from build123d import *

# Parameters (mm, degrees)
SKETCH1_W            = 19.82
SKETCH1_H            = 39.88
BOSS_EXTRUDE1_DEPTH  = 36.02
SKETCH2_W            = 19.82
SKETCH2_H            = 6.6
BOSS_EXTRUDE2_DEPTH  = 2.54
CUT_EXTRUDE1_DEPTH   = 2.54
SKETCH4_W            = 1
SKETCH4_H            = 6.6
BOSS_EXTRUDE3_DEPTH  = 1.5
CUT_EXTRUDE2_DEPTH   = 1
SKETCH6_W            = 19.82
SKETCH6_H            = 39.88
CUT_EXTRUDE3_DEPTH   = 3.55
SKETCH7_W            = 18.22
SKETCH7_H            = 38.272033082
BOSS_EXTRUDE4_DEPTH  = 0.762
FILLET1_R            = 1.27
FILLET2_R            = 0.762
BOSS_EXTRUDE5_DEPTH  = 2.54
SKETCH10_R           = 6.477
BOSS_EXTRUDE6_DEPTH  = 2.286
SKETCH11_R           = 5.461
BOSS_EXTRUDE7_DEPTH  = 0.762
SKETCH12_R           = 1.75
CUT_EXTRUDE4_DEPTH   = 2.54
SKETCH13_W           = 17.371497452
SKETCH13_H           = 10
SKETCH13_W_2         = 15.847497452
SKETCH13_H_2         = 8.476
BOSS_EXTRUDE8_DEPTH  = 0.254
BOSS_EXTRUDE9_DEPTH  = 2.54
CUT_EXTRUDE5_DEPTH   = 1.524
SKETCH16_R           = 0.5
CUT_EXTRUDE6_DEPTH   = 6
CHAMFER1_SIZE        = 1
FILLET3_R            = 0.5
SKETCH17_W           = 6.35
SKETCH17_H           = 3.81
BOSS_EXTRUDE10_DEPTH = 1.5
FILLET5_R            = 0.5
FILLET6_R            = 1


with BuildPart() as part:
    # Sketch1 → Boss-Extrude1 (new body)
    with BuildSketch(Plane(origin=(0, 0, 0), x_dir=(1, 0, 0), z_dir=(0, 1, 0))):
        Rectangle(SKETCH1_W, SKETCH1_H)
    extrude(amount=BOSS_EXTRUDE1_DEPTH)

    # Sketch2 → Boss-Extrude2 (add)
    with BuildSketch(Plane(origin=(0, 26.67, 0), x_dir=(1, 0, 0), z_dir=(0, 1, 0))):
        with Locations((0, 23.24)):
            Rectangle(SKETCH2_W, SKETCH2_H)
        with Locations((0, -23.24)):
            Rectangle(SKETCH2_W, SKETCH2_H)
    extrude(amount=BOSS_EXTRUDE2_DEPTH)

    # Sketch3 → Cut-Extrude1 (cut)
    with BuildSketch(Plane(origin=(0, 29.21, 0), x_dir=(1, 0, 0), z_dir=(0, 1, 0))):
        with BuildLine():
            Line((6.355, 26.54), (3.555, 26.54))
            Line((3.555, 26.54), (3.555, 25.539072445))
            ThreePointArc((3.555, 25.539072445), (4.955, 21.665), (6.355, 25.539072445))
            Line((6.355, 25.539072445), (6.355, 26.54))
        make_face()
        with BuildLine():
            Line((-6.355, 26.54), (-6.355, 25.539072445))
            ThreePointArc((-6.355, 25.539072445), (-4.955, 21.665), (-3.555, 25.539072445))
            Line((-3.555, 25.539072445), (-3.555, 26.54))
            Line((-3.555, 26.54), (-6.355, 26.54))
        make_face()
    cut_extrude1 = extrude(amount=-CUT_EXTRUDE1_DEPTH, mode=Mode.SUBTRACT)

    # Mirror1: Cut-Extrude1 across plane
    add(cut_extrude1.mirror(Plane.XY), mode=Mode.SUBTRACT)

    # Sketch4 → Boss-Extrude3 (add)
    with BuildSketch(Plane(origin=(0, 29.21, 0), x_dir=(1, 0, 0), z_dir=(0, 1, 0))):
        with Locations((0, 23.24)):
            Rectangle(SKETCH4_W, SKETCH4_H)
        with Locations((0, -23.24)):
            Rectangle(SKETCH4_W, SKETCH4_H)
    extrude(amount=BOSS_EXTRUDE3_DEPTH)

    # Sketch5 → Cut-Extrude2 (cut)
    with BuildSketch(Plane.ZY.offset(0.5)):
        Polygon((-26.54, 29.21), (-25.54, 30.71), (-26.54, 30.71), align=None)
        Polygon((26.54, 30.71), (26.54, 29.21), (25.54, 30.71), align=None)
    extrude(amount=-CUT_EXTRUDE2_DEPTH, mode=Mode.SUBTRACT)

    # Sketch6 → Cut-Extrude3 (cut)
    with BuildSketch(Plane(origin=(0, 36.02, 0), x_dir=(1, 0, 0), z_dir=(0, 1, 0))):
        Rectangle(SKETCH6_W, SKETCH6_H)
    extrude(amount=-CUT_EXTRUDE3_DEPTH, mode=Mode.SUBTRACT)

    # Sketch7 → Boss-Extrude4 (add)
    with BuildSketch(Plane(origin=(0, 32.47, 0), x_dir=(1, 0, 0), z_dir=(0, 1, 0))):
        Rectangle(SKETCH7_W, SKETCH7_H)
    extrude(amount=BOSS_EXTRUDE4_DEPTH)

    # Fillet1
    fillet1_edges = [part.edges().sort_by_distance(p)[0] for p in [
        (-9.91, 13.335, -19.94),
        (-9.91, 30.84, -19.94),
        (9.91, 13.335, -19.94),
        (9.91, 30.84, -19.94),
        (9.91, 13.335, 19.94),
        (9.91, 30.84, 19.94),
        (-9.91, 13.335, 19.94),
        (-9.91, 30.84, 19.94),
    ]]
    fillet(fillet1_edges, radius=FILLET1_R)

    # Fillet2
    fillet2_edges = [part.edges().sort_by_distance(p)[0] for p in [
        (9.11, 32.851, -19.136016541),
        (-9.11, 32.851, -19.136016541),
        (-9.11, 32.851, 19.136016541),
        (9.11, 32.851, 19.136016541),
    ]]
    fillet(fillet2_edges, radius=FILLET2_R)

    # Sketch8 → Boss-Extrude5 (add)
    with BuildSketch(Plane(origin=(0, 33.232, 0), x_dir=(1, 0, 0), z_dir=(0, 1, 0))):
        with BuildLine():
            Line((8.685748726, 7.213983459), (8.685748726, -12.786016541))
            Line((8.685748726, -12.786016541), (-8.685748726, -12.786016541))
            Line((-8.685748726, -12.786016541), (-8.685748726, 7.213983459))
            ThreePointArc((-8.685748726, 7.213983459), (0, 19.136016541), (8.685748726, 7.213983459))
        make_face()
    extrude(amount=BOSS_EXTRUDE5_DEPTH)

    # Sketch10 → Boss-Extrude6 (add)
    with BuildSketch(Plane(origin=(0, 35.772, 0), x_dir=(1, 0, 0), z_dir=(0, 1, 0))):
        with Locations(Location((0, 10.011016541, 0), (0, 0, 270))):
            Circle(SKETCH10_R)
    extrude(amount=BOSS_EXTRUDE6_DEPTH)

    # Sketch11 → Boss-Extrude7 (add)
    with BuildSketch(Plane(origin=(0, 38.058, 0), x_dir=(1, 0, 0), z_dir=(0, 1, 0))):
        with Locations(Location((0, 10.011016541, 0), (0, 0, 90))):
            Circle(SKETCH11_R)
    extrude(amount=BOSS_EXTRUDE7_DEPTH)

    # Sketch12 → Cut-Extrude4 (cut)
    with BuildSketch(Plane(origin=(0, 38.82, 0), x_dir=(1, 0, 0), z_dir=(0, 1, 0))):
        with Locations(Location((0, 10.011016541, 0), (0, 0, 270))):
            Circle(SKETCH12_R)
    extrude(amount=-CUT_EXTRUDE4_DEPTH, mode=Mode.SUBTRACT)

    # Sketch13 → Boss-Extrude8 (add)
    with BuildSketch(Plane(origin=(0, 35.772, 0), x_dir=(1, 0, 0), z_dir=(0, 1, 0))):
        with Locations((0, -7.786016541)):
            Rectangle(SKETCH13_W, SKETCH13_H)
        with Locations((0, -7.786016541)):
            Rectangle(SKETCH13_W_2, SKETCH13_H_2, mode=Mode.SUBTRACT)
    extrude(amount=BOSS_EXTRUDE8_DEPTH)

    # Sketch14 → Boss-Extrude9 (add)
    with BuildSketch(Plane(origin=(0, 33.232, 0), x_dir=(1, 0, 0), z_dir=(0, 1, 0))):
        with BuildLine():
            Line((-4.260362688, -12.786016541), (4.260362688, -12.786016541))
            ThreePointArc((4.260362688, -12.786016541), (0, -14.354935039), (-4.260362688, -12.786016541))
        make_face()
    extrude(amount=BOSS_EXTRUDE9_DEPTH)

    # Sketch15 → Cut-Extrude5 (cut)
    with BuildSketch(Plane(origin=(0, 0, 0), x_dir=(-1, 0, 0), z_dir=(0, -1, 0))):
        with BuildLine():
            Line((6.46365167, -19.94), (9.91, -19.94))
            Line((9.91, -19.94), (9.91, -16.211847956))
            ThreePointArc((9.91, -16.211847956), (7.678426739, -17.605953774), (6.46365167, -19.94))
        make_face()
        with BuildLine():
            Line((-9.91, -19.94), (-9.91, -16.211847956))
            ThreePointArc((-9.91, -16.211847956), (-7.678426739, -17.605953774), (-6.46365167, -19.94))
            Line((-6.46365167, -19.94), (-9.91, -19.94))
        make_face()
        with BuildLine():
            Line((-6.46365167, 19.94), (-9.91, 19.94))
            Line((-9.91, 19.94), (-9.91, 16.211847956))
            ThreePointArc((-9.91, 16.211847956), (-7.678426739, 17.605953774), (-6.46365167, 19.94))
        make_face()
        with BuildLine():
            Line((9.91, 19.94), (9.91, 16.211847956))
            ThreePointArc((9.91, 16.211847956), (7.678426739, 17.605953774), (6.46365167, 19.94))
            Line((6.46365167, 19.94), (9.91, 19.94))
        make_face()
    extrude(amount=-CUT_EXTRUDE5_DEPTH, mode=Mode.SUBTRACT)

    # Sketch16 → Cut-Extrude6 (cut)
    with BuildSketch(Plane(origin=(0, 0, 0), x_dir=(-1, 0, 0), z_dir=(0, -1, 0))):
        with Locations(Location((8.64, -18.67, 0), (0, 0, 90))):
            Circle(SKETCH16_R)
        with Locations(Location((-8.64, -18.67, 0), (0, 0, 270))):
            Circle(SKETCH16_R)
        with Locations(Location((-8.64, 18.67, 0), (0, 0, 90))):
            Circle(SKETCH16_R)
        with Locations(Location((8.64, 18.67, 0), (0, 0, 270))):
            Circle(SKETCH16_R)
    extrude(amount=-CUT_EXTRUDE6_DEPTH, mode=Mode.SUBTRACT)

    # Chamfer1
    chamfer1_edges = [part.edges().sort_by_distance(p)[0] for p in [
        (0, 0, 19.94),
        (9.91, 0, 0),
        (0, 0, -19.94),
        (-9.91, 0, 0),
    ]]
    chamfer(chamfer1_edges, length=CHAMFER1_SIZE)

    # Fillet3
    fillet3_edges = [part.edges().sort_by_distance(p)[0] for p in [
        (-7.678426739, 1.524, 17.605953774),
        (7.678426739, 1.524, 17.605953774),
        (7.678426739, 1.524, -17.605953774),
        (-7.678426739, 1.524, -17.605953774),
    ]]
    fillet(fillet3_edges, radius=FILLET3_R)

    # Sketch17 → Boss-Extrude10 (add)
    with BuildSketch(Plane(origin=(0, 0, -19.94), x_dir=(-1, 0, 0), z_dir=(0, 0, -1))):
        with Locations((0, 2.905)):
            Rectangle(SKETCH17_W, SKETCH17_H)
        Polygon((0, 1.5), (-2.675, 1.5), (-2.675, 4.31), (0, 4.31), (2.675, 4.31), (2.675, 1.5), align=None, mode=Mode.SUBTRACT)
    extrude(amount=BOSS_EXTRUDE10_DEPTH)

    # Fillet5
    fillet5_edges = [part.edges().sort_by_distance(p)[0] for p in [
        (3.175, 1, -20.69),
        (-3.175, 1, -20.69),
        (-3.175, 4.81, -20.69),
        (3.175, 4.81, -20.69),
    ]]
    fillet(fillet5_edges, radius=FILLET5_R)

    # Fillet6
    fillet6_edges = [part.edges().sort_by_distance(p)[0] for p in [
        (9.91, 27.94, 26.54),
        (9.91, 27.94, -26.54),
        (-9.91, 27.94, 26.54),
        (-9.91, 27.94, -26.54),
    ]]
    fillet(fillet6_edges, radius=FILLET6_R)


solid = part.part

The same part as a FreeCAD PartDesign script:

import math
import FreeCAD as App
import Part
import Sketcher

V = App.Vector
Q = App.Units.Quantity


def edges_at(feature, points):
    """Names of the edges that pass closest to the given points."""
    edges = feature.Shape.Edges
    near = lambda p: min(range(len(edges)), key=lambda i: edges[i].distToShape(Part.Vertex(*p))[0])
    return sorted({f"Edge{near(p) + 1}" for p in points})

doc = App.newDocument("Part")
params = doc.addObject("Spreadsheet::Sheet", "Params")
for row, (alias, value) in enumerate([
    ("pad1_length", "36.02 mm"),
    ("pad2_length", "0.1 in"),
    ("pocket1_length", "0.1 in"),
    ("pad3_length", "1.5 mm"),
    ("pocket2_length", "1 mm"),
    ("pocket3_length", "3.55 mm"),
    ("pad4_length", "0.03 in"),
    ("fillet_radius", "0.05 in"),
    ("fillet2_radius", "0.03 in"),
    ("pad5_length", "0.1 in"),
    ("sketch9_diameter", "0.51 in"),
    ("pad6_length", "0.09 in"),
    ("sketch10_diameter", "0.43 in"),
    ("pad7_length", "0.03 in"),
    ("pocket4_length", "0.1 in"),
    ("pad8_length", "0.01 in"),
    ("pad9_length", "0.1 in"),
    ("pocket5_length", "0.06 in"),
    ("pocket6_length", "6 mm"),
    ("chamfer_size", "1 mm"),
    ("fillet3_radius", "0.5 mm"),
    ("sketch16_width", "0.25 in"),
    ("sketch16_height", "0.15 in"),
    ("pad10_length", "1.5 mm"),
    ("fillet4_radius", "0.5 mm"),
    ("fillet5_radius", "1 mm"),
], start=1):
    params.set(f"A{row}", alias)
    params.set(f"B{row}", "=" + value)
    params.setAlias(f"B{row}", alias)

body = doc.addObject("PartDesign::Body", "Body")

# Sketch on XZ plane
sketch1 = body.newObject("Sketcher::SketchObject", "Sketch")
sketch1.AttachmentSupport = (doc.getObject("XZ_Plane"), [""])
sketch1.MapMode = "FlatFace"
sketch1.addGeometry(Part.LineSegment(V(-9.91, -19.94, 0), V(-9.91, 19.94, 0)), False)
sketch1.addGeometry(Part.LineSegment(V(-9.91, 19.94, 0), V(9.91, 19.94, 0)), False)
sketch1.addGeometry(Part.LineSegment(V(9.91, 19.94, 0), V(9.91, -19.94, 0)), False)
sketch1.addGeometry(Part.LineSegment(V(9.91, -19.94, 0), V(-9.91, -19.94, 0)), False)
sketch1.addConstraint(Sketcher.Constraint("Coincident", 0, 2, 1, 1))
sketch1.addConstraint(Sketcher.Constraint("Coincident", 1, 2, 2, 1))
sketch1.addConstraint(Sketcher.Constraint("Coincident", 2, 2, 3, 1))
sketch1.addConstraint(Sketcher.Constraint("Coincident", 3, 2, 0, 1))
sketch1.addConstraint(Sketcher.Constraint("Vertical", 0))
sketch1.addConstraint(Sketcher.Constraint("Horizontal", 1))
sketch1.addConstraint(Sketcher.Constraint("Vertical", 2))
sketch1.addConstraint(Sketcher.Constraint("Horizontal", 3))
sketch1.addConstraint(Sketcher.Constraint("Symmetric", 0, 2, 2, 2, -1, 1))
sketch1.addConstraint(Sketcher.Constraint("DistanceX", 1, 1, 1, 2, Q("19.82 mm")))
sketch1.addConstraint(Sketcher.Constraint("DistanceY", 0, 1, 0, 2, Q("39.88 mm")))
pad1 = body.newObject("PartDesign::Pad", "Pad")
pad1.Profile = sketch1
pad1.setExpression("Length", "Params.pad1_length")
pad1.Reversed = True

# Sketch on XZ plane
sketch2 = body.newObject("Sketcher::SketchObject", "Sketch001")
sketch2.AttachmentSupport = (doc.getObject("XZ_Plane"), [""])
sketch2.MapMode = "FlatFace"
sketch2.AttachmentOffset = App.Placement(V(0, 0, -1.05 * 25.4), App.Rotation())
sketch2.addGeometry(Part.LineSegment(V(-9.91, -26.54, 0), V(-9.91, -19.94, 0)), False)
sketch2.addGeometry(Part.LineSegment(V(-9.91, -19.94, 0), V(9.91, -19.94, 0)), False)
sketch2.addGeometry(Part.LineSegment(V(9.91, -19.94, 0), V(9.91, -26.54, 0)), False)
sketch2.addGeometry(Part.LineSegment(V(9.91, -26.54, 0), V(-9.91, -26.54, 0)), False)
sketch2.addGeometry(Part.LineSegment(V(-9.91, 19.94, 0), V(-9.91, 26.54, 0)), False)
sketch2.addGeometry(Part.LineSegment(V(-9.91, 26.54, 0), V(9.91, 26.54, 0)), False)
sketch2.addGeometry(Part.LineSegment(V(9.91, 26.54, 0), V(9.91, 19.94, 0)), False)
sketch2.addGeometry(Part.LineSegment(V(9.91, 19.94, 0), V(-9.91, 19.94, 0)), False)
sketch2.addConstraint(Sketcher.Constraint("Coincident", 0, 2, 1, 1))
sketch2.addConstraint(Sketcher.Constraint("Coincident", 1, 2, 2, 1))
sketch2.addConstraint(Sketcher.Constraint("Coincident", 2, 2, 3, 1))
sketch2.addConstraint(Sketcher.Constraint("Coincident", 3, 2, 0, 1))
sketch2.addConstraint(Sketcher.Constraint("Coincident", 4, 2, 5, 1))
sketch2.addConstraint(Sketcher.Constraint("Coincident", 5, 2, 6, 1))
sketch2.addConstraint(Sketcher.Constraint("Coincident", 6, 2, 7, 1))
sketch2.addConstraint(Sketcher.Constraint("Coincident", 7, 2, 4, 1))
sketch2.addConstraint(Sketcher.Constraint("Vertical", 0))
sketch2.addConstraint(Sketcher.Constraint("Horizontal", 1))
sketch2.addConstraint(Sketcher.Constraint("Vertical", 2))
sketch2.addConstraint(Sketcher.Constraint("Horizontal", 3))
sketch2.addConstraint(Sketcher.Constraint("Vertical", 4))
sketch2.addConstraint(Sketcher.Constraint("Horizontal", 5))
sketch2.addConstraint(Sketcher.Constraint("Vertical", 6))
sketch2.addConstraint(Sketcher.Constraint("Horizontal", 7))
sketch2.addConstraint(Sketcher.Constraint("Symmetric", 2, 2, 4, 2, -1, 1))
sketch2.addConstraint(Sketcher.Constraint("Symmetric", 0, 2, 6, 2, -1, 1))
sketch2.addConstraint(Sketcher.Constraint("Vertical", 3, 2, 4, 2))
sketch2.addConstraint(Sketcher.Constraint("DistanceX", 1, 1, 1, 2, Q("19.82 mm")))
sketch2.addConstraint(Sketcher.Constraint("DistanceY", 0, 1, 0, 2, Q("6.6 mm")))
sketch2.addConstraint(Sketcher.Constraint("DistanceY", 0, 2, -1, 1, Q("19.94 mm")))
pad2 = body.newObject("PartDesign::Pad", "Pad001")
pad2.Profile = sketch2
pad2.setExpression("Length", "Params.pad2_length")
pad2.Reversed = True

# Sketch on XZ plane
sketch3 = body.newObject("Sketcher::SketchObject", "Sketch002")
sketch3.AttachmentSupport = (doc.getObject("XZ_Plane"), [""])
sketch3.MapMode = "FlatFace"
sketch3.AttachmentOffset = App.Placement(V(0, 0, -1.15 * 25.4), App.Rotation())
sketch3.addGeometry(Part.LineSegment(V(6.355, -26.54, 0), V(3.555, -26.54, 0)), False)
sketch3.addGeometry(Part.LineSegment(V(3.555, -26.54, 0), V(3.555, -25.539072, 0)), False)
sketch3.addGeometry(Part.ArcOfCircle(Part.Circle(V(4.955, -23.855, 0), V(0, 0, 1), 2.19), math.radians(-50.262637), math.radians(230.262637)), False)
sketch3.addGeometry(Part.LineSegment(V(6.355, -25.539072, 0), V(6.355, -26.54, 0)), False)
sketch3.addGeometry(Part.LineSegment(V(-6.355, -26.54, 0), V(-6.355, -25.539072, 0)), False)
sketch3.addGeometry(Part.ArcOfCircle(Part.Circle(V(-4.955, -23.855, 0), V(0, 0, 1), 2.19), math.radians(-50.262637), math.radians(230.262637)), False)
sketch3.addGeometry(Part.LineSegment(V(-3.555, -25.539072, 0), V(-3.555, -26.54, 0)), False)
sketch3.addGeometry(Part.LineSegment(V(-3.555, -26.54, 0), V(-6.355, -26.54, 0)), False)
sketch3.addConstraint(Sketcher.Constraint("Coincident", 0, 2, 1, 1))
sketch3.addConstraint(Sketcher.Constraint("Coincident", 1, 2, 2, 2))
sketch3.addConstraint(Sketcher.Constraint("Coincident", 2, 1, 3, 1))
sketch3.addConstraint(Sketcher.Constraint("Coincident", 3, 2, 0, 1))
sketch3.addConstraint(Sketcher.Constraint("Coincident", 4, 2, 5, 2))
sketch3.addConstraint(Sketcher.Constraint("Coincident", 5, 1, 6, 1))
sketch3.addConstraint(Sketcher.Constraint("Coincident", 6, 2, 7, 1))
sketch3.addConstraint(Sketcher.Constraint("Coincident", 7, 2, 4, 1))
sketch3.addConstraint(Sketcher.Constraint("Horizontal", 0))
sketch3.addConstraint(Sketcher.Constraint("Vertical", 1))
sketch3.addConstraint(Sketcher.Constraint("Vertical", 3))
sketch3.addConstraint(Sketcher.Constraint("Vertical", 4))
sketch3.addConstraint(Sketcher.Constraint("Vertical", 6))
sketch3.addConstraint(Sketcher.Constraint("Horizontal", 7))
sketch3.addConstraint(Sketcher.Constraint("Equal", 2, 5))
sketch3.addConstraint(Sketcher.Constraint("Symmetric", 2, 3, 5, 3, -2))
sketch3.addConstraint(Sketcher.Constraint("Symmetric", 0, 2, 6, 2, -2))
sketch3.addConstraint(Sketcher.Constraint("Horizontal", 1, 2, 2, 1))
sketch3.addConstraint(Sketcher.Constraint("Horizontal", 2, 1, 4, 2))
sketch3.addConstraint(Sketcher.Constraint("Radius", 2, Q("2.19 mm")))
sketch3.addConstraint(Sketcher.Constraint("DistanceX", 0, 2, 0, 1, Q("2.8 mm")))
sketch3.addConstraint(Sketcher.Constraint("DistanceX", -1, 1, 2, 3, Q("4.955 mm")))
sketch3.addConstraint(Sketcher.Constraint("DistanceY", 2, 3, -1, 1, Q("23.855 mm")))
sketch3.addConstraint(Sketcher.Constraint("DistanceY", 0, 2, -1, 1, Q("26.54 mm")))
pocket1 = body.newObject("PartDesign::Pocket", "Pocket")
pocket1.Profile = sketch3
pocket1.setExpression("Length", "Params.pocket1_length")
pocket1.Reversed = True
doc.recompute()

mirrored = body.newObject("PartDesign::Mirrored", "Mirrored")
mirrored.Originals = [pocket1]
mirrored.MirrorPlane = (doc.getObject("XY_Plane"), [""])
body.Tip = mirrored

# Sketch on XZ plane
sketch4 = body.newObject("Sketcher::SketchObject", "Sketch003")
sketch4.AttachmentSupport = (doc.getObject("XZ_Plane"), [""])
sketch4.MapMode = "FlatFace"
sketch4.AttachmentOffset = App.Placement(V(0, 0, -1.15 * 25.4), App.Rotation())
sketch4.addGeometry(Part.LineSegment(V(-0.5, -26.54, 0), V(-0.5, -19.94, 0)), False)
sketch4.addGeometry(Part.LineSegment(V(-0.5, -19.94, 0), V(0.5, -19.94, 0)), False)
sketch4.addGeometry(Part.LineSegment(V(0.5, -19.94, 0), V(0.5, -26.54, 0)), False)
sketch4.addGeometry(Part.LineSegment(V(0.5, -26.54, 0), V(-0.5, -26.54, 0)), False)
sketch4.addGeometry(Part.LineSegment(V(-0.5, 19.94, 0), V(-0.5, 26.54, 0)), False)
sketch4.addGeometry(Part.LineSegment(V(-0.5, 26.54, 0), V(0.5, 26.54, 0)), False)
sketch4.addGeometry(Part.LineSegment(V(0.5, 26.54, 0), V(0.5, 19.94, 0)), False)
sketch4.addGeometry(Part.LineSegment(V(0.5, 19.94, 0), V(-0.5, 19.94, 0)), False)
sketch4.addConstraint(Sketcher.Constraint("Coincident", 0, 2, 1, 1))
sketch4.addConstraint(Sketcher.Constraint("Coincident", 1, 2, 2, 1))
sketch4.addConstraint(Sketcher.Constraint("Coincident", 2, 2, 3, 1))
sketch4.addConstraint(Sketcher.Constraint("Coincident", 3, 2, 0, 1))
sketch4.addConstraint(Sketcher.Constraint("Coincident", 4, 2, 5, 1))
sketch4.addConstraint(Sketcher.Constraint("Coincident", 5, 2, 6, 1))
sketch4.addConstraint(Sketcher.Constraint("Coincident", 6, 2, 7, 1))
sketch4.addConstraint(Sketcher.Constraint("Coincident", 7, 2, 4, 1))
sketch4.addConstraint(Sketcher.Constraint("Vertical", 0))
sketch4.addConstraint(Sketcher.Constraint("Horizontal", 1))
sketch4.addConstraint(Sketcher.Constraint("Vertical", 2))
sketch4.addConstraint(Sketcher.Constraint("Horizontal", 3))
sketch4.addConstraint(Sketcher.Constraint("Vertical", 4))
sketch4.addConstraint(Sketcher.Constraint("Horizontal", 5))
sketch4.addConstraint(Sketcher.Constraint("Vertical", 6))
sketch4.addConstraint(Sketcher.Constraint("Horizontal", 7))
sketch4.addConstraint(Sketcher.Constraint("Symmetric", 2, 2, 4, 2, -1, 1))
sketch4.addConstraint(Sketcher.Constraint("Symmetric", 0, 2, 6, 2, -1, 1))
sketch4.addConstraint(Sketcher.Constraint("Vertical", 3, 2, 4, 2))
sketch4.addConstraint(Sketcher.Constraint("DistanceX", 1, 1, 1, 2, Q("1 mm")))
sketch4.addConstraint(Sketcher.Constraint("DistanceY", 0, 1, 0, 2, Q("6.6 mm")))
sketch4.addConstraint(Sketcher.Constraint("DistanceY", 0, 2, -1, 1, Q("19.94 mm")))
pad3 = body.newObject("PartDesign::Pad", "Pad002")
pad3.Profile = sketch4
pad3.setExpression("Length", "Params.pad3_length")
pad3.Reversed = True

# Sketch on YZ plane
sketch5 = body.newObject("Sketcher::SketchObject", "Sketch004")
sketch5.AttachmentSupport = (doc.getObject("YZ_Plane"), [""])
sketch5.MapMode = "FlatFace"
sketch5.AttachmentOffset = App.Placement(V(0, 0, -0.5), App.Rotation())
sketch5.addGeometry(Part.LineSegment(V(29.21, -26.54, 0), V(30.71, -25.54, 0)), False)
sketch5.addGeometry(Part.LineSegment(V(30.71, -25.54, 0), V(30.71, -26.54, 0)), False)
sketch5.addGeometry(Part.LineSegment(V(30.71, -26.54, 0), V(29.21, -26.54, 0)), False)
sketch5.addGeometry(Part.LineSegment(V(29.21, 26.54, 0), V(30.71, 26.54, 0)), False)
sketch5.addGeometry(Part.LineSegment(V(30.71, 26.54, 0), V(30.71, 25.54, 0)), False)
sketch5.addGeometry(Part.LineSegment(V(30.71, 25.54, 0), V(29.21, 26.54, 0)), False)
sketch5.addConstraint(Sketcher.Constraint("Coincident", 0, 2, 1, 1))
sketch5.addConstraint(Sketcher.Constraint("Coincident", 1, 2, 2, 1))
sketch5.addConstraint(Sketcher.Constraint("Coincident", 2, 2, 0, 1))
sketch5.addConstraint(Sketcher.Constraint("Coincident", 3, 2, 4, 1))
sketch5.addConstraint(Sketcher.Constraint("Coincident", 4, 2, 5, 1))
sketch5.addConstraint(Sketcher.Constraint("Coincident", 5, 2, 3, 1))
sketch5.addConstraint(Sketcher.Constraint("Vertical", 1))
sketch5.addConstraint(Sketcher.Constraint("Horizontal", 2))
sketch5.addConstraint(Sketcher.Constraint("Horizontal", 3))
sketch5.addConstraint(Sketcher.Constraint("Vertical", 4))
sketch5.addConstraint(Sketcher.Constraint("Symmetric", 1, 2, 3, 2, -1))
sketch5.addConstraint(Sketcher.Constraint("Vertical", 2, 2, 5, 2))
sketch5.addConstraint(Sketcher.Constraint("Equal", 1, 4))
sketch5.addConstraint(Sketcher.Constraint("DistanceX", -1, 1, 2, 2, Q("1.15 in")))
sketch5.addConstraint(Sketcher.Constraint("DistanceX", 2, 2, 2, 1, Q("1.5 mm")))
sketch5.addConstraint(Sketcher.Constraint("DistanceY", 1, 2, 1, 1, Q("1 mm")))
sketch5.addConstraint(Sketcher.Constraint("DistanceY", 0, 2, -1, 1, Q("25.54 mm")))
pocket2 = body.newObject("PartDesign::Pocket", "Pocket001")
pocket2.Profile = sketch5
pocket2.setExpression("Length", "Params.pocket2_length")
pocket2.Reversed = True

# Sketch on XZ plane
sketch6 = body.newObject("Sketcher::SketchObject", "Sketch005")
sketch6.AttachmentSupport = (doc.getObject("XZ_Plane"), [""])
sketch6.MapMode = "FlatFace"
sketch6.AttachmentOffset = App.Placement(V(0, 0, -36.02), App.Rotation())
sketch6.addGeometry(Part.LineSegment(V(-9.91, -19.94, 0), V(-9.91, 19.94, 0)), False)
sketch6.addGeometry(Part.LineSegment(V(-9.91, 19.94, 0), V(9.91, 19.94, 0)), False)
sketch6.addGeometry(Part.LineSegment(V(9.91, 19.94, 0), V(9.91, -19.94, 0)), False)
sketch6.addGeometry(Part.LineSegment(V(9.91, -19.94, 0), V(-9.91, -19.94, 0)), False)
sketch6.addConstraint(Sketcher.Constraint("Coincident", 0, 2, 1, 1))
sketch6.addConstraint(Sketcher.Constraint("Coincident", 1, 2, 2, 1))
sketch6.addConstraint(Sketcher.Constraint("Coincident", 2, 2, 3, 1))
sketch6.addConstraint(Sketcher.Constraint("Coincident", 3, 2, 0, 1))
sketch6.addConstraint(Sketcher.Constraint("Vertical", 0))
sketch6.addConstraint(Sketcher.Constraint("Horizontal", 1))
sketch6.addConstraint(Sketcher.Constraint("Vertical", 2))
sketch6.addConstraint(Sketcher.Constraint("Horizontal", 3))
sketch6.addConstraint(Sketcher.Constraint("Symmetric", 0, 2, 2, 2, -1, 1))
sketch6.addConstraint(Sketcher.Constraint("DistanceX", 1, 1, 1, 2, Q("19.82 mm")))
sketch6.addConstraint(Sketcher.Constraint("DistanceY", 0, 1, 0, 2, Q("39.88 mm")))
pocket3 = body.newObject("PartDesign::Pocket", "Pocket002")
pocket3.Profile = sketch6
pocket3.setExpression("Length", "Params.pocket3_length")
pocket3.Reversed = True

# Sketch on XZ plane
sketch7 = body.newObject("Sketcher::SketchObject", "Sketch006")
sketch7.AttachmentSupport = (doc.getObject("XZ_Plane"), [""])
sketch7.MapMode = "FlatFace"
sketch7.AttachmentOffset = App.Placement(V(0, 0, -32.47), App.Rotation())
sketch7.addGeometry(Part.LineSegment(V(-9.11, -19.136017, 0), V(-9.11, 19.136017, 0)), False)
sketch7.addGeometry(Part.LineSegment(V(-9.11, 19.136017, 0), V(9.11, 19.136017, 0)), False)
sketch7.addGeometry(Part.LineSegment(V(9.11, 19.136017, 0), V(9.11, -19.136017, 0)), False)
sketch7.addGeometry(Part.LineSegment(V(9.11, -19.136017, 0), V(-9.11, -19.136017, 0)), False)
sketch7.addConstraint(Sketcher.Constraint("Coincident", 0, 2, 1, 1))
sketch7.addConstraint(Sketcher.Constraint("Coincident", 1, 2, 2, 1))
sketch7.addConstraint(Sketcher.Constraint("Coincident", 2, 2, 3, 1))
sketch7.addConstraint(Sketcher.Constraint("Coincident", 3, 2, 0, 1))
sketch7.addConstraint(Sketcher.Constraint("Vertical", 0))
sketch7.addConstraint(Sketcher.Constraint("Horizontal", 1))
sketch7.addConstraint(Sketcher.Constraint("Vertical", 2))
sketch7.addConstraint(Sketcher.Constraint("Horizontal", 3))
sketch7.addConstraint(Sketcher.Constraint("Symmetric", 0, 2, 2, 2, -1, 1))
sketch7.addConstraint(Sketcher.Constraint("DistanceX", 1, 1, 1, 2, Q("18.22 mm")))
sketch7.addConstraint(Sketcher.Constraint("DistanceY", 0, 1, 0, 2, Q("38.272033 mm")))
pad4 = body.newObject("PartDesign::Pad", "Pad003")
pad4.Profile = sketch7
pad4.setExpression("Length", "Params.pad4_length")
pad4.Reversed = True
doc.recompute()

fillet = body.newObject("PartDesign::Fillet", "Fillet")
fillet.Base = (pad4, edges_at(pad4, [
    (-9.91, 13.335, -19.94),
    (-9.91, 30.84, -19.94),
    (9.91, 13.335, -19.94),
    (9.91, 30.84, -19.94),
    (9.91, 13.335, 19.94),
    (9.91, 30.84, 19.94),
    (-9.91, 13.335, 19.94),
    (-9.91, 30.84, 19.94),
]))
fillet.setExpression("Radius", "Params.fillet_radius")
doc.recompute()

fillet2 = body.newObject("PartDesign::Fillet", "Fillet001")
fillet2.Base = (fillet, edges_at(fillet, [
    (9.11, 32.851, -19.136),
    (-9.11, 32.851, -19.136),
    (-9.11, 32.851, 19.136),
    (9.11, 32.851, 19.136),
]))
fillet2.setExpression("Radius", "Params.fillet2_radius")

# Sketch on XZ plane
sketch8 = body.newObject("Sketcher::SketchObject", "Sketch007")
sketch8.AttachmentSupport = (doc.getObject("XZ_Plane"), [""])
sketch8.MapMode = "FlatFace"
sketch8.AttachmentOffset = App.Placement(V(0, 0, -33.232), App.Rotation())
sketch8.addGeometry(Part.LineSegment(V(8.685749, 12.786017, 0), V(8.685749, -7.213983, 0)), False)
sketch8.addGeometry(Part.ArcOfCircle(Part.Circle(V(0, -10.011017, 0), V(0, 0, 1), 9.125), math.radians(162.150115), math.radians(377.849885)), False)
sketch8.addGeometry(Part.LineSegment(V(-8.685749, -7.213983, 0), V(-8.685749, 12.786017, 0)), False)
sketch8.addGeometry(Part.LineSegment(V(-8.685749, 12.786017, 0), V(8.685749, 12.786017, 0)), False)
sketch8.addConstraint(Sketcher.Constraint("Coincident", 0, 2, 1, 2))
sketch8.addConstraint(Sketcher.Constraint("Coincident", 1, 1, 2, 1))
sketch8.addConstraint(Sketcher.Constraint("Coincident", 2, 2, 3, 1))
sketch8.addConstraint(Sketcher.Constraint("Coincident", 3, 2, 0, 1))
sketch8.addConstraint(Sketcher.Constraint("Vertical", 0))
sketch8.addConstraint(Sketcher.Constraint("Vertical", 2))
sketch8.addConstraint(Sketcher.Constraint("Horizontal", 3))
sketch8.addConstraint(Sketcher.Constraint("Symmetric", 0, 2, 1, 1, -2))
sketch8.addConstraint(Sketcher.Constraint("Radius", 1, Q("9.125 mm")))
sketch8.addConstraint(Sketcher.Constraint("DistanceY", 0, 2, 0, 1, Q("20 mm")))
sketch8.addConstraint(Sketcher.Constraint("DistanceX", 3, 1, 3, 2, Q("17.371497 mm")))
sketch8.addConstraint(Sketcher.Constraint("DistanceY", 1, 3, -1, 1, Q("10.011017 mm")))
pad5 = body.newObject("PartDesign::Pad", "Pad004")
pad5.Profile = sketch8
pad5.setExpression("Length", "Params.pad5_length")
pad5.Reversed = True

# Sketch on XZ plane
sketch9 = body.newObject("Sketcher::SketchObject", "Sketch008")
sketch9.AttachmentSupport = (doc.getObject("XZ_Plane"), [""])
sketch9.MapMode = "FlatFace"
sketch9.AttachmentOffset = App.Placement(V(0, 0, -35.772), App.Rotation())
sketch9.addGeometry(Part.Circle(V(0, -10.011017, 0), V(0, 0, 1), 6.477), False)
sketch9.addConstraint(Sketcher.Constraint("PointOnObject", 0, 3, -2))
sketch9.addConstraint(Sketcher.Constraint("Diameter", 0, Q("0.51 in")))
sketch9.addConstraint(Sketcher.Constraint("DistanceY", 0, 3, -1, 1, Q("10.011017 mm")))
sketch9.setExpression("Constraints[1]", "Params.sketch9_diameter")
pad6 = body.newObject("PartDesign::Pad", "Pad005")
pad6.Profile = sketch9
pad6.setExpression("Length", "Params.pad6_length")
pad6.Reversed = True

# Sketch on XZ plane
sketch10 = body.newObject("Sketcher::SketchObject", "Sketch009")
sketch10.AttachmentSupport = (doc.getObject("XZ_Plane"), [""])
sketch10.MapMode = "FlatFace"
sketch10.AttachmentOffset = App.Placement(V(0, 0, -38.058), App.Rotation())
sketch10.addGeometry(Part.Circle(V(0, -10.011017, 0), V(0, 0, 1), 5.461), False)
sketch10.addConstraint(Sketcher.Constraint("PointOnObject", 0, 3, -2))
sketch10.addConstraint(Sketcher.Constraint("Diameter", 0, Q("0.43 in")))
sketch10.addConstraint(Sketcher.Constraint("DistanceY", 0, 3, -1, 1, Q("10.011017 mm")))
sketch10.setExpression("Constraints[1]", "Params.sketch10_diameter")
pad7 = body.newObject("PartDesign::Pad", "Pad006")
pad7.Profile = sketch10
pad7.setExpression("Length", "Params.pad7_length")
pad7.Reversed = True

# Sketch on XZ plane
sketch11 = body.newObject("Sketcher::SketchObject", "Sketch010")
sketch11.AttachmentSupport = (doc.getObject("XZ_Plane"), [""])
sketch11.MapMode = "FlatFace"
sketch11.AttachmentOffset = App.Placement(V(0, 0, -38.82), App.Rotation())
sketch11.addGeometry(Part.Circle(V(0, -10.011017, 0), V(0, 0, 1), 1.75), False)
sketch11.addConstraint(Sketcher.Constraint("PointOnObject", 0, 3, -2))
sketch11.addConstraint(Sketcher.Constraint("Diameter", 0, Q("3.5 mm")))
sketch11.addConstraint(Sketcher.Constraint("DistanceY", 0, 3, -1, 1, Q("10.011017 mm")))
pocket4 = body.newObject("PartDesign::Pocket", "Pocket003")
pocket4.Profile = sketch11
pocket4.setExpression("Length", "Params.pocket4_length")
pocket4.Reversed = True

# Sketch on XZ plane
sketch12 = body.newObject("Sketcher::SketchObject", "Sketch011")
sketch12.AttachmentSupport = (doc.getObject("XZ_Plane"), [""])
sketch12.MapMode = "FlatFace"
sketch12.AttachmentOffset = App.Placement(V(0, 0, -35.772), App.Rotation())
sketch12.addGeometry(Part.LineSegment(V(-8.685749, 2.786017, 0), V(-8.685749, 12.786017, 0)), False)
sketch12.addGeometry(Part.LineSegment(V(-8.685749, 12.786017, 0), V(8.685749, 12.786017, 0)), False)
sketch12.addGeometry(Part.LineSegment(V(8.685749, 12.786017, 0), V(8.685749, 2.786017, 0)), False)
sketch12.addGeometry(Part.LineSegment(V(8.685749, 2.786017, 0), V(-8.685749, 2.786017, 0)), False)
sketch12.addGeometry(Part.LineSegment(V(7.923749, 12.024017, 0), V(-7.923749, 12.024017, 0)), False)
sketch12.addGeometry(Part.LineSegment(V(-7.923749, 12.024017, 0), V(-7.923749, 3.548017, 0)), False)
sketch12.addGeometry(Part.LineSegment(V(-7.923749, 3.548017, 0), V(7.923749, 3.548017, 0)), False)
sketch12.addGeometry(Part.LineSegment(V(7.923749, 3.548017, 0), V(7.923749, 12.024017, 0)), False)
sketch12.addConstraint(Sketcher.Constraint("Coincident", 0, 2, 1, 1))
sketch12.addConstraint(Sketcher.Constraint("Coincident", 1, 2, 2, 1))
sketch12.addConstraint(Sketcher.Constraint("Coincident", 2, 2, 3, 1))
sketch12.addConstraint(Sketcher.Constraint("Coincident", 3, 2, 0, 1))
sketch12.addConstraint(Sketcher.Constraint("Coincident", 4, 2, 5, 1))
sketch12.addConstraint(Sketcher.Constraint("Coincident", 5, 2, 6, 1))
sketch12.addConstraint(Sketcher.Constraint("Coincident", 6, 2, 7, 1))
sketch12.addConstraint(Sketcher.Constraint("Coincident", 7, 2, 4, 1))
sketch12.addConstraint(Sketcher.Constraint("Vertical", 0))
sketch12.addConstraint(Sketcher.Constraint("Horizontal", 1))
sketch12.addConstraint(Sketcher.Constraint("Vertical", 2))
sketch12.addConstraint(Sketcher.Constraint("Horizontal", 3))
sketch12.addConstraint(Sketcher.Constraint("Horizontal", 4))
sketch12.addConstraint(Sketcher.Constraint("Vertical", 5))
sketch12.addConstraint(Sketcher.Constraint("Horizontal", 6))
sketch12.addConstraint(Sketcher.Constraint("Vertical", 7))
sketch12.addConstraint(Sketcher.Constraint("DistanceX", 0, 2, 4, 2, Q("0.03 in")))
sketch12.addConstraint(Sketcher.Constraint("DistanceY", 4, 2, 0, 2, Q("0.03 in")))
sketch12.addConstraint(Sketcher.Constraint("DistanceY", 3, 2, 5, 2, Q("0.03 in")))
sketch12.addConstraint(Sketcher.Constraint("DistanceX", 6, 2, 2, 2, Q("0.03 in")))
sketch12.addConstraint(Sketcher.Constraint("DistanceY", 0, 1, 0, 2, Q("10 mm")))
sketch12.addConstraint(Sketcher.Constraint("DistanceX", 1, 1, 1, 2, Q("17.371497 mm")))
sketch12.addConstraint(Sketcher.Constraint("DistanceX", 0, 2, -1, 1, Q("8.685749 mm")))
sketch12.addConstraint(Sketcher.Constraint("DistanceY", -1, 1, 0, 2, Q("12.786017 mm")))
pad8 = body.newObject("PartDesign::Pad", "Pad007")
pad8.Profile = sketch12
pad8.setExpression("Length", "Params.pad8_length")
pad8.Reversed = True

# Sketch on XZ plane
sketch13 = body.newObject("Sketcher::SketchObject", "Sketch012")
sketch13.AttachmentSupport = (doc.getObject("XZ_Plane"), [""])
sketch13.MapMode = "FlatFace"
sketch13.AttachmentOffset = App.Placement(V(0, 0, -33.232), App.Rotation())
sketch13.addGeometry(Part.LineSegment(V(4.260363, 12.786017, 0), V(-4.260363, 12.786017, 0)), False)
sketch13.addGeometry(Part.ArcOfCircle(Part.Circle(V(0, 7.786017, 0), V(0, 0, 1), 6.568918), math.radians(49.566595), math.radians(130.433405)), False)
sketch13.addConstraint(Sketcher.Constraint("Coincident", 0, 1, 1, 1))
sketch13.addConstraint(Sketcher.Constraint("Coincident", 1, 2, 0, 2))
sketch13.addConstraint(Sketcher.Constraint("Horizontal", 0))
sketch13.addConstraint(Sketcher.Constraint("PointOnObject", 1, 3, -2))
sketch13.addConstraint(Sketcher.Constraint("Radius", 1, Q("6.568918 mm")))
sketch13.addConstraint(Sketcher.Constraint("DistanceY", 1, 3, 0, 1, Q("5 mm")))
sketch13.addConstraint(Sketcher.Constraint("DistanceY", -1, 1, 1, 3, Q("7.786017 mm")))
pad9 = body.newObject("PartDesign::Pad", "Pad008")
pad9.Profile = sketch13
pad9.setExpression("Length", "Params.pad9_length")
pad9.Reversed = True

# Sketch on XZ plane
sketch14 = body.newObject("Sketcher::SketchObject", "Sketch013")
sketch14.AttachmentSupport = (doc.getObject("XZ_Plane"), [""])
sketch14.MapMode = "FlatFace"
sketch14.addGeometry(Part.LineSegment(V(-6.463652, 19.94, 0), V(-9.91, 19.94, 0)), False)
sketch14.addGeometry(Part.LineSegment(V(-9.91, 19.94, 0), V(-9.91, 16.211848, 0)), False)
sketch14.addGeometry(Part.ArcOfCircle(Part.Circle(V(-11.35, 21, 0), V(0, 0, 1), 5), math.radians(-73.261743), math.radians(-12.239583)), False)
sketch14.addGeometry(Part.LineSegment(V(9.91, 16.211848, 0), V(9.91, 19.94, 0)), False)
sketch14.addGeometry(Part.LineSegment(V(9.91, 19.94, 0), V(6.463652, 19.94, 0)), False)
sketch14.addGeometry(Part.ArcOfCircle(Part.Circle(V(11.35, 21, 0), V(0, 0, 1), 5), math.radians(-167.760417), math.radians(-106.738257)), False)
sketch14.addGeometry(Part.LineSegment(V(6.463652, -19.94, 0), V(9.91, -19.94, 0)), False)
sketch14.addGeometry(Part.LineSegment(V(9.91, -19.94, 0), V(9.91, -16.211848, 0)), False)
sketch14.addGeometry(Part.ArcOfCircle(Part.Circle(V(11.35, -21, 0), V(0, 0, 1), 5), math.radians(106.738257), math.radians(167.760417)), False)
sketch14.addGeometry(Part.LineSegment(V(-9.91, -16.211848, 0), V(-9.91, -19.94, 0)), False)
sketch14.addGeometry(Part.LineSegment(V(-9.91, -19.94, 0), V(-6.463652, -19.94, 0)), False)
sketch14.addGeometry(Part.ArcOfCircle(Part.Circle(V(-11.35, -21, 0), V(0, 0, 1), 5), math.radians(12.239583), math.radians(73.261743)), False)
sketch14.addConstraint(Sketcher.Constraint("Coincident", 0, 2, 1, 1))
sketch14.addConstraint(Sketcher.Constraint("Coincident", 1, 2, 2, 1))
sketch14.addConstraint(Sketcher.Constraint("Coincident", 2, 2, 0, 1))
sketch14.addConstraint(Sketcher.Constraint("Coincident", 3, 2, 4, 1))
sketch14.addConstraint(Sketcher.Constraint("Coincident", 4, 2, 5, 1))
sketch14.addConstraint(Sketcher.Constraint("Coincident", 5, 2, 3, 1))
sketch14.addConstraint(Sketcher.Constraint("Coincident", 6, 2, 7, 1))
sketch14.addConstraint(Sketcher.Constraint("Coincident", 7, 2, 8, 1))
sketch14.addConstraint(Sketcher.Constraint("Coincident", 8, 2, 6, 1))
sketch14.addConstraint(Sketcher.Constraint("Coincident", 9, 2, 10, 1))
sketch14.addConstraint(Sketcher.Constraint("Coincident", 10, 2, 11, 1))
sketch14.addConstraint(Sketcher.Constraint("Coincident", 11, 2, 9, 1))
sketch14.addConstraint(Sketcher.Constraint("Horizontal", 0))
sketch14.addConstraint(Sketcher.Constraint("Vertical", 1))
sketch14.addConstraint(Sketcher.Constraint("Vertical", 3))
sketch14.addConstraint(Sketcher.Constraint("Horizontal", 4))
sketch14.addConstraint(Sketcher.Constraint("Horizontal", 6))
sketch14.addConstraint(Sketcher.Constraint("Vertical", 7))
sketch14.addConstraint(Sketcher.Constraint("Vertical", 9))
sketch14.addConstraint(Sketcher.Constraint("Horizontal", 10))
sketch14.addConstraint(Sketcher.Constraint("Equal", 2, 5))
sketch14.addConstraint(Sketcher.Constraint("Equal", 5, 8))
sketch14.addConstraint(Sketcher.Constraint("Equal", 8, 11))
sketch14.addConstraint(Sketcher.Constraint("Symmetric", 2, 3, 8, 3, -1, 1))
sketch14.addConstraint(Sketcher.Constraint("Symmetric", 5, 3, 11, 3, -1, 1))
sketch14.addConstraint(Sketcher.Constraint("Symmetric", 0, 2, 6, 2, -1, 1))
sketch14.addConstraint(Sketcher.Constraint("Symmetric", 3, 2, 9, 2, -1, 1))
sketch14.addConstraint(Sketcher.Constraint("Symmetric", 2, 3, 5, 3, -2))
sketch14.addConstraint(Sketcher.Constraint("Symmetric", 0, 2, 3, 2, -2))
sketch14.addConstraint(Sketcher.Constraint("Radius", 2, Q("5 mm")))
sketch14.addConstraint(Sketcher.Constraint("DistanceX", 0, 2, 0, 1, Q("3.446348 mm")))
sketch14.addConstraint(Sketcher.Constraint("DistanceX", 2, 3, -1, 1, Q("11.35 mm")))
sketch14.addConstraint(Sketcher.Constraint("DistanceY", -1, 1, 2, 3, Q("21 mm")))
sketch14.addConstraint(Sketcher.Constraint("DistanceX", 0, 2, -1, 1, Q("9.91 mm")))
pocket5 = body.newObject("PartDesign::Pocket", "Pocket004")
pocket5.Profile = sketch14
pocket5.setExpression("Length", "Params.pocket5_length")

# Sketch on XZ plane
sketch15 = body.newObject("Sketcher::SketchObject", "Sketch014")
sketch15.AttachmentSupport = (doc.getObject("XZ_Plane"), [""])
sketch15.MapMode = "FlatFace"
sketch15.addGeometry(Part.Circle(V(-8.64, 18.67, 0), V(0, 0, 1), 0.5), False)
sketch15.addGeometry(Part.Circle(V(8.64, 18.67, 0), V(0, 0, 1), 0.5), False)
sketch15.addGeometry(Part.Circle(V(8.64, -18.67, 0), V(0, 0, 1), 0.5), False)
sketch15.addGeometry(Part.Circle(V(-8.64, -18.67, 0), V(0, 0, 1), 0.5), False)
sketch15.addConstraint(Sketcher.Constraint("Equal", 0, 1))
sketch15.addConstraint(Sketcher.Constraint("Equal", 1, 2))
sketch15.addConstraint(Sketcher.Constraint("Equal", 2, 3))
sketch15.addConstraint(Sketcher.Constraint("Symmetric", 0, 3, 2, 3, -1, 1))
sketch15.addConstraint(Sketcher.Constraint("Symmetric", 1, 3, 3, 3, -1, 1))
sketch15.addConstraint(Sketcher.Constraint("Symmetric", 0, 3, 1, 3, -2))
sketch15.addConstraint(Sketcher.Constraint("Diameter", 0, Q("1 mm")))
sketch15.addConstraint(Sketcher.Constraint("DistanceX", 0, 3, -1, 1, Q("8.64 mm")))
sketch15.addConstraint(Sketcher.Constraint("DistanceY", -1, 1, 0, 3, Q("18.67 mm")))
pocket6 = body.newObject("PartDesign::Pocket", "Pocket005")
pocket6.Profile = sketch15
pocket6.setExpression("Length", "Params.pocket6_length")
doc.recompute()

chamfer = body.newObject("PartDesign::Chamfer", "Chamfer")
chamfer.Base = (pocket6, edges_at(pocket6, [
    (0, 0, 19.94),
    (9.91, 0, 0),
    (0, 0, -19.94),
    (-9.91, 0, 0),
]))
chamfer.setExpression("Size", "Params.chamfer_size")
doc.recompute()

fillet3 = body.newObject("PartDesign::Fillet", "Fillet002")
fillet3.Base = (chamfer, edges_at(chamfer, [
    (-7.678, 1.524, 17.606),
    (7.678, 1.524, 17.606),
    (7.678, 1.524, -17.606),
    (-7.678, 1.524, -17.606),
]))
fillet3.setExpression("Radius", "Params.fillet3_radius")

# Sketch on XY plane
sketch16 = body.newObject("Sketcher::SketchObject", "Sketch015")
sketch16.AttachmentSupport = (doc.getObject("XY_Plane"), [""])
sketch16.MapMode = "FlatFace"
sketch16.AttachmentOffset = App.Placement(V(0, 0, -19.94), App.Rotation())
sketch16.addGeometry(Part.LineSegment(V(3.175, 4.81, 0), V(3.175, 1, 0)), False)
sketch16.addGeometry(Part.LineSegment(V(3.175, 1, 0), V(-3.175, 1, 0)), False)
sketch16.addGeometry(Part.LineSegment(V(-3.175, 1, 0), V(-3.175, 4.81, 0)), False)
sketch16.addGeometry(Part.LineSegment(V(-3.175, 4.81, 0), V(3.175, 4.81, 0)), False)
sketch16.addGeometry(Part.LineSegment(V(-2.675, 1.5, 0), V(2.675, 1.5, 0)), False)
sketch16.addGeometry(Part.LineSegment(V(2.675, 1.5, 0), V(2.675, 4.31, 0)), False)
sketch16.addGeometry(Part.LineSegment(V(2.675, 4.31, 0), V(-2.675, 4.31, 0)), False)
sketch16.addGeometry(Part.LineSegment(V(-2.675, 4.31, 0), V(-2.675, 1.5, 0)), False)
sketch16.addConstraint(Sketcher.Constraint("Coincident", 0, 2, 1, 1))
sketch16.addConstraint(Sketcher.Constraint("Coincident", 1, 2, 2, 1))
sketch16.addConstraint(Sketcher.Constraint("Coincident", 2, 2, 3, 1))
sketch16.addConstraint(Sketcher.Constraint("Coincident", 3, 2, 0, 1))
sketch16.addConstraint(Sketcher.Constraint("Coincident", 4, 2, 5, 1))
sketch16.addConstraint(Sketcher.Constraint("Coincident", 5, 2, 6, 1))
sketch16.addConstraint(Sketcher.Constraint("Coincident", 6, 2, 7, 1))
sketch16.addConstraint(Sketcher.Constraint("Coincident", 7, 2, 4, 1))
sketch16.addConstraint(Sketcher.Constraint("Vertical", 0))
sketch16.addConstraint(Sketcher.Constraint("Horizontal", 1))
sketch16.addConstraint(Sketcher.Constraint("Vertical", 2))
sketch16.addConstraint(Sketcher.Constraint("Horizontal", 3))
sketch16.addConstraint(Sketcher.Constraint("Horizontal", 4))
sketch16.addConstraint(Sketcher.Constraint("Vertical", 5))
sketch16.addConstraint(Sketcher.Constraint("Horizontal", 6))
sketch16.addConstraint(Sketcher.Constraint("Vertical", 7))
sketch16.addConstraint(Sketcher.Constraint("DistanceX", 1, 2, 1, 1, Q("0.25 in")))
sketch16.addConstraint(Sketcher.Constraint("DistanceY", 0, 2, 0, 1, Q("0.15 in")))
sketch16.addConstraint(Sketcher.Constraint("DistanceX", -1, 1, 0, 2, Q("0.125 in")))
sketch16.addConstraint(Sketcher.Constraint("DistanceX", 4, 1, 4, 2, Q("5.35 mm")))
sketch16.addConstraint(Sketcher.Constraint("DistanceY", 5, 1, 5, 2, Q("2.81 mm")))
sketch16.addConstraint(Sketcher.Constraint("DistanceY", -1, 1, 0, 2, Q("1 mm")))
sketch16.addConstraint(Sketcher.Constraint("DistanceX", -1, 1, 4, 2, Q("2.675 mm")))
sketch16.addConstraint(Sketcher.Constraint("DistanceY", -1, 1, 4, 2, Q("1.5 mm")))
sketch16.setExpression("Constraints[16]", "Params.sketch16_width")
sketch16.setExpression("Constraints[17]", "Params.sketch16_height")
pad10 = body.newObject("PartDesign::Pad", "Pad009")
pad10.Profile = sketch16
pad10.setExpression("Length", "Params.pad10_length")
pad10.Reversed = True
doc.recompute()

fillet4 = body.newObject("PartDesign::Fillet", "Fillet003")
fillet4.Base = (pad10, edges_at(pad10, [
    (3.175, 1, -20.69),
    (-3.175, 1, -20.69),
    (-3.175, 4.81, -20.69),
    (3.175, 4.81, -20.69),
]))
fillet4.setExpression("Radius", "Params.fillet4_radius")
doc.recompute()

fillet5 = body.newObject("PartDesign::Fillet", "Fillet004")
fillet5.Base = (fillet4, edges_at(fillet4, [
    (9.91, 27.94, 26.54),
    (9.91, 27.94, -26.54),
    (-9.91, 27.94, 26.54),
    (-9.91, 27.94, -26.54),
]))
fillet5.setExpression("Radius", "Params.fillet5_radius")

doc.recompute()
